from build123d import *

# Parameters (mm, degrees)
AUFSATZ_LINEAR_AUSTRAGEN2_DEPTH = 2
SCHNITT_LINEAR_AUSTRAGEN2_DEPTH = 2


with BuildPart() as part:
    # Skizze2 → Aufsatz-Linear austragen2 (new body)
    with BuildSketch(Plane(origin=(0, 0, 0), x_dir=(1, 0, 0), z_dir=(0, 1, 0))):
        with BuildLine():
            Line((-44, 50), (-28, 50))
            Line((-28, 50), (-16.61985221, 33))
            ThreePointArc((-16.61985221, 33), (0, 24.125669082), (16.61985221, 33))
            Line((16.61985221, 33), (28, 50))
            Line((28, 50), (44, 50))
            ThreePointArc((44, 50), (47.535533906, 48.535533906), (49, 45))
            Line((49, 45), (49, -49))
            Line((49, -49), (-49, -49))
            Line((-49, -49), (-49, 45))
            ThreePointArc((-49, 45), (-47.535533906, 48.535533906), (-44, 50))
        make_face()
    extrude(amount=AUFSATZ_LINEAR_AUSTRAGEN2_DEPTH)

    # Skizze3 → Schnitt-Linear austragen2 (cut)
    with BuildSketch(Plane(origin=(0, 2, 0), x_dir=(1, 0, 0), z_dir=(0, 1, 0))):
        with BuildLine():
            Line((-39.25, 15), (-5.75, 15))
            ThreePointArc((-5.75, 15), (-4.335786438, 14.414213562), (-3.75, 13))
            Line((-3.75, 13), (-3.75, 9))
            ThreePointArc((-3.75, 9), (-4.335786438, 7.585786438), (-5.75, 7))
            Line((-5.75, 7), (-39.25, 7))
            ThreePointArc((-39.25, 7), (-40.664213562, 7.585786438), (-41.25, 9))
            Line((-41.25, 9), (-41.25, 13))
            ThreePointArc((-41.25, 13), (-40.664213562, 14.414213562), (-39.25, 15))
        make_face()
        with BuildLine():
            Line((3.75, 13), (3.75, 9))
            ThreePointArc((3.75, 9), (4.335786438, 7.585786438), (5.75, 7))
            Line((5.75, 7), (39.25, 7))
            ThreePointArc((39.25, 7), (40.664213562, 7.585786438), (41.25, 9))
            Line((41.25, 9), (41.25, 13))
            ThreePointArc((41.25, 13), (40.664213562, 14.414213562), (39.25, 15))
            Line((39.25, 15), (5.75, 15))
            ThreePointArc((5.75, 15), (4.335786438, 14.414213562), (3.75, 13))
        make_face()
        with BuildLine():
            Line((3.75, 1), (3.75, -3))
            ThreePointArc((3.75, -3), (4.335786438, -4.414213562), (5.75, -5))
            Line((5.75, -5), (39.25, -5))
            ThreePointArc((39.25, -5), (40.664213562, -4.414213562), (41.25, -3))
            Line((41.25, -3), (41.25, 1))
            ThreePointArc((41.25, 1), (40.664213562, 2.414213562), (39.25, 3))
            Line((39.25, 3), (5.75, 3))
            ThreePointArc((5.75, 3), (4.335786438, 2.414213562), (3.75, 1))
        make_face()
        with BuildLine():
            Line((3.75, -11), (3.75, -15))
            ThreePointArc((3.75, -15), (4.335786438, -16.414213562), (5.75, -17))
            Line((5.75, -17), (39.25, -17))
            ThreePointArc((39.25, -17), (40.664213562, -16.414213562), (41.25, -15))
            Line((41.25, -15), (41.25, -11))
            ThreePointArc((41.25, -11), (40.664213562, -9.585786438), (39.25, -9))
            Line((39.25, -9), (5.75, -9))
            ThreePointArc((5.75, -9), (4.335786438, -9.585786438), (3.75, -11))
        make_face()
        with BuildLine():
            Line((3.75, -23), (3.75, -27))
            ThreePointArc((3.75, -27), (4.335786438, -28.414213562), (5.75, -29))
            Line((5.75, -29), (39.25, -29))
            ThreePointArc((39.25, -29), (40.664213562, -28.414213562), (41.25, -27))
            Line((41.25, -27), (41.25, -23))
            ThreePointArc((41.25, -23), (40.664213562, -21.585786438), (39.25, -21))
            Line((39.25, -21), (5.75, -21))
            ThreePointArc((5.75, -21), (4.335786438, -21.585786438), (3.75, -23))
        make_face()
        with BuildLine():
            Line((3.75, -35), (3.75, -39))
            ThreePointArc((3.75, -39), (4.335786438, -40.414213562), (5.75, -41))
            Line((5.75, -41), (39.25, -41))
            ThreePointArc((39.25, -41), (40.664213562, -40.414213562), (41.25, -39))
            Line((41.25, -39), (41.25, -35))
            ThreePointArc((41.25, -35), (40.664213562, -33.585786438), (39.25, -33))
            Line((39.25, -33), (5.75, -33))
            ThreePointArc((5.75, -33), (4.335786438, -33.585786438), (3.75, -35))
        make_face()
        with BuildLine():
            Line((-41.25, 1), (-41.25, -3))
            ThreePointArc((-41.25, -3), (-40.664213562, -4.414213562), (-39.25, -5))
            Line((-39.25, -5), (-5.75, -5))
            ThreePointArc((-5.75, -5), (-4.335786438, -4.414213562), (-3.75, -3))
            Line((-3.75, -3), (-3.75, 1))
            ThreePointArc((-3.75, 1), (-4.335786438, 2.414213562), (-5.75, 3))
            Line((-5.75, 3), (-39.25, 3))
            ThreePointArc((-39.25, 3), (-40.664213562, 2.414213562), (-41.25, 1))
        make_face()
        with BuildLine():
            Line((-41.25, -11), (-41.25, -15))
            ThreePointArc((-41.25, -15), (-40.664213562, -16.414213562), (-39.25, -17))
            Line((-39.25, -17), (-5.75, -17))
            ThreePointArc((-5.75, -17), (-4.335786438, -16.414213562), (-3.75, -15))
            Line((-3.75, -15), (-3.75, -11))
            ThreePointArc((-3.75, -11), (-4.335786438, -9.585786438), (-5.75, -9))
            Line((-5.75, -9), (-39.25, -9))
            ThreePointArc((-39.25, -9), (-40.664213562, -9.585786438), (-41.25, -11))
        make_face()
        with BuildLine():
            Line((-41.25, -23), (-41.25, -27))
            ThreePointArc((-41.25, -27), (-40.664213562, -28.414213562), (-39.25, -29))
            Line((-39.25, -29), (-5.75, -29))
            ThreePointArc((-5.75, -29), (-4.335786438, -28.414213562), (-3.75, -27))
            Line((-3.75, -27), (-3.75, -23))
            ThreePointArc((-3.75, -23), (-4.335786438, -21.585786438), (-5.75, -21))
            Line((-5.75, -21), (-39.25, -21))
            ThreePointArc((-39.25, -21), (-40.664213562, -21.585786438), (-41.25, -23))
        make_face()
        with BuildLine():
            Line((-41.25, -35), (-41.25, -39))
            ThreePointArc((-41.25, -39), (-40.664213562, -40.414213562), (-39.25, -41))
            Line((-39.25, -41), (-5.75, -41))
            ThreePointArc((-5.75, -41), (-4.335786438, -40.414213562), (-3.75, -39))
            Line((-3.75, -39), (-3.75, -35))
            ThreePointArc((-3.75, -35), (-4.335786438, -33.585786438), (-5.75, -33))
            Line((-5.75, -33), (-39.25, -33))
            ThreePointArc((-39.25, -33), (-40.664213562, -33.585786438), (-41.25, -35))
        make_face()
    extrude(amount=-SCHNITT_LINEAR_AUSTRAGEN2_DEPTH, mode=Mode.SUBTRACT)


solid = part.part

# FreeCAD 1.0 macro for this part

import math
import FreeCAD as App
import Part
import Sketcher
from FreeCAD import Vector

doc = App.newDocument("Part")
body = doc.addObject("PartDesign::Body", "Body")

# Sketch on XZ plane
sketch1 = body.newObject("Sketcher::SketchObject", "Sketch")
sketch1.AttachmentSupport = (doc.getObject("XZ_Plane"), [""])
sketch1.MapMode = "FlatFace"
sketch1.addGeometry([
    Part.LineSegment(Vector(-28, -50, 0), Vector(-44, -50, 0)),  # 0
    Part.ArcOfCircle(Part.Circle(Vector(-44, -45, 0), Vector(0, 0, 1), 5), math.radians(180), math.radians(270)),  # 1
    Part.LineSegment(Vector(-49, -45, 0), Vector(-49, 49, 0)),  # 2
    Part.LineSegment(Vector(-49, 49, 0), Vector(49, 49, 0)),  # 3
    Part.LineSegment(Vector(49, 49, 0), Vector(49, -45, 0)),  # 4
    Part.ArcOfCircle(Part.Circle(Vector(44, -45, 0), Vector(0, 0, 1), 5), math.radians(-90), math.radians(0)),  # 5
    Part.LineSegment(Vector(44, -50, 0), Vector(28, -50, 0)),  # 6
    Part.LineSegment(Vector(28, -50, 0), Vector(16.619852, -33, 0)),  # 7
    Part.ArcOfCircle(Part.Circle(Vector(0, -44.125669, 0), Vector(0, 0, 1), 20), math.radians(33.799161), math.radians(146.200839)),  # 8
    Part.LineSegment(Vector(-16.619852, -33, 0), Vector(-28, -50, 0)),  # 9
], False)
sketch1.addConstraint([
    Sketcher.Constraint("Tangent", 0, 2, 1, 2),
    Sketcher.Constraint("Tangent", 1, 1, 2, 1),
    Sketcher.Constraint("Coincident", 2, 2, 3, 1),
    Sketcher.Constraint("Coincident", 3, 2, 4, 1),
    Sketcher.Constraint("Tangent", 4, 2, 5, 2),
    Sketcher.Constraint("Tangent", 5, 1, 6, 1),
    Sketcher.Constraint("Coincident", 6, 2, 7, 1),
    Sketcher.Constraint("Tangent", 7, 2, 8, 1),
    Sketcher.Constraint("Tangent", 8, 2, 9, 1),
    Sketcher.Constraint("Coincident", 9, 2, 0, 1),
    Sketcher.Constraint("Horizontal", 0),
    Sketcher.Constraint("Vertical", 2),
    Sketcher.Constraint("Horizontal", 3),
    Sketcher.Constraint("Vertical", 4),
    Sketcher.Constraint("Horizontal", 6),
    Sketcher.Constraint("Equal", 1, 5),
    Sketcher.Constraint("Symmetric", 1, 3, 5, 3, -2),
    Sketcher.Constraint("Symmetric", 7, 2, 8, 2, -2),
    Sketcher.Constraint("Radius", 1, 5.0),
    Sketcher.Constraint("Radius", 8, 20.0),
    Sketcher.Constraint("DistanceX", 0, 2, 0, 1, 16.0),
    Sketcher.Constraint("DistanceX", 3, 1, 3, 2, 98.0),
    Sketcher.Constraint("DistanceY", 2, 1, 2, 2, 94.0),
    Sketcher.Constraint("DistanceY", 1, 3, -1, 1, 45.0),
    Sketcher.Constraint("DistanceY", 7, 2, -1, 1, 33.0),
])
pad1 = body.newObject("PartDesign::Pad", "Pad")
pad1.Profile = sketch1
pad1.Length = 2
pad1.Reversed = True

# Sketch on XZ plane
sketch2 = body.newObject("Sketcher::SketchObject", "Sketch001")
sketch2.AttachmentSupport = (doc.getObject("XZ_Plane"), [""])
sketch2.MapMode = "FlatFace"
sketch2.AttachmentOffset = App.Placement(Vector(0, 0, -2), App.Rotation())
sketch2.addGeometry([
    Part.LineSegment(Vector(-5.75, -15, 0), Vector(-39.25, -15, 0)),  # 0
    Part.ArcOfCircle(Part.Circle(Vector(-39.25, -13, 0), Vector(0, 0, 1), 2), math.radians(-180), math.radians(-90)),  # 1
    Part.LineSegment(Vector(-41.25, -13, 0), Vector(-41.25, -9, 0)),  # 2
    Part.ArcOfCircle(Part.Circle(Vector(-39.25, -9, 0), Vector(0, 0, 1), 2), math.radians(90), math.radians(180)),  # 3
    Part.LineSegment(Vector(-39.25, -7, 0), Vector(-5.75, -7, 0)),  # 4
    Part.ArcOfCircle(Part.Circle(Vector(-5.75, -9, 0), Vector(0, 0, 1), 2), math.radians(0), math.radians(90)),  # 5
    Part.LineSegment(Vector(-3.75, -9, 0), Vector(-3.75, -13, 0)),  # 6
    Part.ArcOfCircle(Part.Circle(Vector(-5.75, -13, 0), Vector(0, 0, 1), 2), math.radians(-90), math.radians(0)),  # 7
    Part.LineSegment(Vector(3.75, -13, 0), Vector(3.75, -9, 0)),  # 8
    Part.ArcOfCircle(Part.Circle(Vector(5.75, -9, 0), Vector(0, 0, 1), 2), math.radians(90), math.radians(180)),  # 9
    Part.LineSegment(Vector(5.75, -7, 0), Vector(39.25, -7, 0)),  # 10
    Part.ArcOfCircle(Part.Circle(Vector(39.25, -9, 0), Vector(0, 0, 1), 2), math.radians(0), math.radians(90)),  # 11
    Part.LineSegment(Vector(41.25, -9, 0), Vector(41.25, -13, 0)),  # 12
    Part.ArcOfCircle(Part.Circle(Vector(39.25, -13, 0), Vector(0, 0, 1), 2), math.radians(-90), math.radians(0)),  # 13
    Part.LineSegment(Vector(39.25, -15, 0), Vector(5.75, -15, 0)),  # 14
    Part.ArcOfCircle(Part.Circle(Vector(5.75, -13, 0), Vector(0, 0, 1), 2), math.radians(-180), math.radians(-90)),  # 15
    Part.LineSegment(Vector(3.75, -1, 0), Vector(3.75, 3, 0)),  # 16
    Part.ArcOfCircle(Part.Circle(Vector(5.75, 3, 0), Vector(0, 0, 1), 2), math.radians(90), math.radians(180)),  # 17
    Part.LineSegment(Vector(5.75, 5, 0), Vector(39.25, 5, 0)),  # 18
    Part.ArcOfCircle(Part.Circle(Vector(39.25, 3, 0), Vector(0, 0, 1), 2), math.radians(0), math.radians(90)),  # 19
    Part.LineSegment(Vector(41.25, 3, 0), Vector(41.25, -1, 0)),  # 20
    Part.ArcOfCircle(Part.Circle(Vector(39.25, -1, 0), Vector(0, 0, 1), 2), math.radians(-90), math.radians(0)),  # 21
    Part.LineSegment(Vector(39.25, -3, 0), Vector(5.75, -3, 0)),  # 22
    Part.ArcOfCircle(Part.Circle(Vector(5.75, -1, 0), Vector(0, 0, 1), 2), math.radians(-180), math.radians(-90)),  # 23
    Part.LineSegment(Vector(3.75, 11, 0), Vector(3.75, 15, 0)),  # 24
    Part.ArcOfCircle(Part.Circle(Vector(5.75, 15, 0), Vector(0, 0, 1), 2), math.radians(90), math.radians(180)),  # 25
    Part.LineSegment(Vector(5.75, 17, 0), Vector(39.25, 17, 0)),  # 26
    Part.ArcOfCircle(Part.Circle(Vector(39.25, 15, 0), Vector(0, 0, 1), 2), math.radians(0), math.radians(90)),  # 27
    Part.LineSegment(Vector(41.25, 15, 0), Vector(41.25, 11, 0)),  # 28
    Part.ArcOfCircle(Part.Circle(Vector(39.25, 11, 0), Vector(0, 0, 1), 2), math.radians(-90), math.radians(0)),  # 29
    Part.LineSegment(Vector(39.25, 9, 0), Vector(5.75, 9, 0)),  # 30
    Part.ArcOfCircle(Part.Circle(Vector(5.75, 11, 0), Vector(0, 0, 1), 2), math.radians(-180), math.radians(-90)),  # 31
    Part.LineSegment(Vector(3.75, 23, 0), Vector(3.75, 27, 0)),  # 32
    Part.ArcOfCircle(Part.Circle(Vector(5.75, 27, 0), Vector(0, 0, 1), 2), math.radians(90), math.radians(180)),  # 33
    Part.LineSegment(Vector(5.75, 29, 0), Vector(39.25, 29, 0)),  # 34
    Part.ArcOfCircle(Part.Circle(Vector(39.25, 27, 0), Vector(0, 0, 1), 2), math.radians(0), math.radians(90)),  # 35
    Part.LineSegment(Vector(41.25, 27, 0), Vector(41.25, 23, 0)),  # 36
    Part.ArcOfCircle(Part.Circle(Vector(39.25, 23, 0), Vector(0, 0, 1), 2), math.radians(-90), math.radians(0)),  # 37
    Part.LineSegment(Vector(39.25, 21, 0), Vector(5.75, 21, 0)),  # 38
    Part.ArcOfCircle(Part.Circle(Vector(5.75, 23, 0), Vector(0, 0, 1), 2), math.radians(-180), math.radians(-90)),  # 39
    Part.LineSegment(Vector(3.75, 35, 0), Vector(3.75, 39, 0)),  # 40
    Part.ArcOfCircle(Part.Circle(Vector(5.75, 39, 0), Vector(0, 0, 1), 2), math.radians(90), math.radians(180)),  # 41
    Part.LineSegment(Vector(5.75, 41, 0), Vector(39.25, 41, 0)),  # 42
    Part.ArcOfCircle(Part.Circle(Vector(39.25, 39, 0), Vector(0, 0, 1), 2), math.radians(0), math.radians(90)),  # 43
    Part.LineSegment(Vector(41.25, 39, 0), Vector(41.25, 35, 0)),  # 44
    Part.ArcOfCircle(Part.Circle(Vector(39.25, 35, 0), Vector(0, 0, 1), 2), math.radians(-90), math.radians(0)),  # 45
    Part.LineSegment(Vector(39.25, 33, 0), Vector(5.75, 33, 0)),  # 46
    Part.ArcOfCircle(Part.Circle(Vector(5.75, 35, 0), Vector(0, 0, 1), 2), math.radians(-180), math.radians(-90)),  # 47
    Part.LineSegment(Vector(-41.25, -1, 0), Vector(-41.25, 3, 0)),  # 48
    Part.ArcOfCircle(Part.Circle(Vector(-39.25, 3, 0), Vector(0, 0, 1), 2), math.radians(90), math.radians(180)),  # 49
    Part.LineSegment(Vector(-39.25, 5, 0), Vector(-5.75, 5, 0)),  # 50
    Part.ArcOfCircle(Part.Circle(Vector(-5.75, 3, 0), Vector(0, 0, 1), 2), math.radians(0), math.radians(90)),  # 51
    Part.LineSegment(Vector(-3.75, 3, 0), Vector(-3.75, -1, 0)),  # 52
    Part.ArcOfCircle(Part.Circle(Vector(-5.75, -1, 0), Vector(0, 0, 1), 2), math.radians(-90), math.radians(0)),  # 53
    Part.LineSegment(Vector(-5.75, -3, 0), Vector(-39.25, -3, 0)),  # 54
    Part.ArcOfCircle(Part.Circle(Vector(-39.25, -1, 0), Vector(0, 0, 1), 2), math.radians(-180), math.radians(-90)),  # 55
    Part.LineSegment(Vector(-41.25, 11, 0), Vector(-41.25, 15, 0)),  # 56
    Part.ArcOfCircle(Part.Circle(Vector(-39.25, 15, 0), Vector(0, 0, 1), 2), math.radians(90), math.radians(180)),  # 57
    Part.LineSegment(Vector(-39.25, 17, 0), Vector(-5.75, 17, 0)),  # 58
    Part.ArcOfCircle(Part.Circle(Vector(-5.75, 15, 0), Vector(0, 0, 1), 2), math.radians(0), math.radians(90)),  # 59
    Part.LineSegment(Vector(-3.75, 15, 0), Vector(-3.75, 11, 0)),  # 60
    Part.ArcOfCircle(Part.Circle(Vector(-5.75, 11, 0), Vector(0, 0, 1), 2), math.radians(-90), math.radians(0)),  # 61
    Part.LineSegment(Vector(-5.75, 9, 0), Vector(-39.25, 9, 0)),  # 62
    Part.ArcOfCircle(Part.Circle(Vector(-39.25, 11, 0), Vector(0, 0, 1), 2), math.radians(-180), math.radians(-90)),  # 63
    Part.LineSegment(Vector(-41.25, 23, 0), Vector(-41.25, 27, 0)),  # 64
    Part.ArcOfCircle(Part.Circle(Vector(-39.25, 27, 0), Vector(0, 0, 1), 2), math.radians(90), math.radians(180)),  # 65
    Part.LineSegment(Vector(-39.25, 29, 0), Vector(-5.75, 29, 0)),  # 66
    Part.ArcOfCircle(Part.Circle(Vector(-5.75, 27, 0), Vector(0, 0, 1), 2), math.radians(0), math.radians(90)),  # 67
    Part.LineSegment(Vector(-3.75, 27, 0), Vector(-3.75, 23, 0)),  # 68
    Part.ArcOfCircle(Part.Circle(Vector(-5.75, 23, 0), Vector(0, 0, 1), 2), math.radians(-90), math.radians(0)),  # 69
    Part.LineSegment(Vector(-5.75, 21, 0), Vector(-39.25, 21, 0)),  # 70
    Part.ArcOfCircle(Part.Circle(Vector(-39.25, 23, 0), Vector(0, 0, 1), 2), math.radians(-180), math.radians(-90)),  # 71
    Part.LineSegment(Vector(-41.25, 35, 0), Vector(-41.25, 39, 0)),  # 72
    Part.ArcOfCircle(Part.Circle(Vector(-39.25, 39, 0), Vector(0, 0, 1), 2), math.radians(90), math.radians(180)),  # 73
    Part.LineSegment(Vector(-39.25, 41, 0), Vector(-5.75, 41, 0)),  # 74
    Part.ArcOfCircle(Part.Circle(Vector(-5.75, 39, 0), Vector(0, 0, 1), 2), math.radians(0), math.radians(90)),  # 75
    Part.LineSegment(Vector(-3.75, 39, 0), Vector(-3.75, 35, 0)),  # 76
    Part.ArcOfCircle(Part.Circle(Vector(-5.75, 35, 0), Vector(0, 0, 1), 2), math.radians(-90), math.radians(0)),  # 77
    Part.LineSegment(Vector(-5.75, 33, 0), Vector(-39.25, 33, 0)),  # 78
    Part.ArcOfCircle(Part.Circle(Vector(-39.25, 35, 0), Vector(0, 0, 1), 2), math.radians(-180), math.radians(-90)),  # 79
], False)
sketch2.addConstraint([
    Sketcher.Constraint("Tangent", 0, 2, 1, 2),
    Sketcher.Constraint("Tangent", 1, 1, 2, 1),
    Sketcher.Constraint("Tangent", 2, 2, 3, 2),
    Sketcher.Constraint("Tangent", 3, 1, 4, 1),
    Sketcher.Constraint("Tangent", 4, 2, 5, 2),
    Sketcher.Constraint("Tangent", 5, 1, 6, 1),
    Sketcher.Constraint("Tangent", 6, 2, 7, 2),
    Sketcher.Constraint("Tangent", 7, 1, 0, 1),
    Sketcher.Constraint("Tangent", 8, 2, 9, 2),
    Sketcher.Constraint("Tangent", 9, 1, 10, 1),
    Sketcher.Constraint("Tangent", 10, 2, 11, 2),
    Sketcher.Constraint("Tangent", 11, 1, 12, 1),
    Sketcher.Constraint("Tangent", 12, 2, 13, 2),
    Sketcher.Constraint("Tangent", 13, 1, 14, 1),
    Sketcher.Constraint("Tangent", 14, 2, 15, 2),
    Sketcher.Constraint("Tangent", 15, 1, 8, 1),
    Sketcher.Constraint("Tangent", 16, 2, 17, 2),
    Sketcher.Constraint("Tangent", 17, 1, 18, 1),
    Sketcher.Constraint("Tangent", 18, 2, 19, 2),
    Sketcher.Constraint("Tangent", 19, 1, 20, 1),
    Sketcher.Constraint("Tangent", 20, 2, 21, 2),
    Sketcher.Constraint("Tangent", 21, 1, 22, 1),
    Sketcher.Constraint("Tangent", 22, 2, 23, 2),
    Sketcher.Constraint("Tangent", 23, 1, 16, 1),
    Sketcher.Constraint("Tangent", 24, 2, 25, 2),
    Sketcher.Constraint("Tangent", 25, 1, 26, 1),
    Sketcher.Constraint("Tangent", 26, 2, 27, 2),
    Sketcher.Constraint("Tangent", 27, 1, 28, 1),
    Sketcher.Constraint("Tangent", 28, 2, 29, 2),
    Sketcher.Constraint("Tangent", 29, 1, 30, 1),
    Sketcher.Constraint("Tangent", 30, 2, 31, 2),
    Sketcher.Constraint("Tangent", 31, 1, 24, 1),
    Sketcher.Constraint("Tangent", 32, 2, 33, 2),
    Sketcher.Constraint("Tangent", 33, 1, 34, 1),
    Sketcher.Constraint("Tangent", 34, 2, 35, 2),
    Sketcher.Constraint("Tangent", 35, 1, 36, 1),
    Sketcher.Constraint("Tangent", 36, 2, 37, 2),
    Sketcher.Constraint("Tangent", 37, 1, 38, 1),
    Sketcher.Constraint("Tangent", 38, 2, 39, 2),
    Sketcher.Constraint("Tangent", 39, 1, 32, 1),
    Sketcher.Constraint("Tangent", 40, 2, 41, 2),
    Sketcher.Constraint("Tangent", 41, 1, 42, 1),
    Sketcher.Constraint("Tangent", 42, 2, 43, 2),
    Sketcher.Constraint("Tangent", 43, 1, 44, 1),
    Sketcher.Constraint("Tangent", 44, 2, 45, 2),
    Sketcher.Constraint("Tangent", 45, 1, 46, 1),
    Sketcher.Constraint("Tangent", 46, 2, 47, 2),
    Sketcher.Constraint("Tangent", 47, 1, 40, 1),
    Sketcher.Constraint("Tangent", 48, 2, 49, 2),
    Sketcher.Constraint("Tangent", 49, 1, 50, 1),
    Sketcher.Constraint("Tangent", 50, 2, 51, 2),
    Sketcher.Constraint("Tangent", 51, 1, 52, 1),
    Sketcher.Constraint("Tangent", 52, 2, 53, 2),
    Sketcher.Constraint("Tangent", 53, 1, 54, 1),
    Sketcher.Constraint("Tangent", 54, 2, 55, 2),
    Sketcher.Constraint("Tangent", 55, 1, 48, 1),
    Sketcher.Constraint("Tangent", 56, 2, 57, 2),
    Sketcher.Constraint("Tangent", 57, 1, 58, 1),
    Sketcher.Constraint("Tangent", 58, 2, 59, 2),
    Sketcher.Constraint("Tangent", 59, 1, 60, 1),
    Sketcher.Constraint("Tangent", 60, 2, 61, 2),
    Sketcher.Constraint("Tangent", 61, 1, 62, 1),
    Sketcher.Constraint("Tangent", 62, 2, 63, 2),
    Sketcher.Constraint("Tangent", 63, 1, 56, 1),
    Sketcher.Constraint("Tangent", 64, 2, 65, 2),
    Sketcher.Constraint("Tangent", 65, 1, 66, 1),
    Sketcher.Constraint("Tangent", 66, 2, 67, 2),
    Sketcher.Constraint("Tangent", 67, 1, 68, 1),
    Sketcher.Constraint("Tangent", 68, 2, 69, 2),
    Sketcher.Constraint("Tangent", 69, 1, 70, 1),
    Sketcher.Constraint("Tangent", 70, 2, 71, 2),
    Sketcher.Constraint("Tangent", 71, 1, 64, 1),
    Sketcher.Constraint("Tangent", 72, 2, 73, 2),
    Sketcher.Constraint("Tangent", 73, 1, 74, 1),
    Sketcher.Constraint("Tangent", 74, 2, 75, 2),
    Sketcher.Constraint("Tangent", 75, 1, 76, 1),
    Sketcher.Constraint("Tangent", 76, 2, 77, 2),
    Sketcher.Constraint("Tangent", 77, 1, 78, 1),
    Sketcher.Constraint("Tangent", 78, 2, 79, 2),
    Sketcher.Constraint("Tangent", 79, 1, 72, 1),
    Sketcher.Constraint("Horizontal", 0),
    Sketcher.Constraint("Vertical", 2),
    Sketcher.Constraint("Horizontal", 4),
    Sketcher.Constraint("Vertical", 6),
    Sketcher.Constraint("Vertical", 8),
    Sketcher.Constraint("Horizontal", 10),
    Sketcher.Constraint("Vertical", 12),
    Sketcher.Constraint("Horizontal", 14),
    Sketcher.Constraint("Vertical", 16),
    Sketcher.Constraint("Horizontal", 18),
    Sketcher.Constraint("Vertical", 20),
    Sketcher.Constraint("Horizontal", 22),
    Sketcher.Constraint("Vertical", 24),
    Sketcher.Constraint("Horizontal", 26),
    Sketcher.Constraint("Vertical", 28),
    Sketcher.Constraint("Horizontal", 30),
    Sketcher.Constraint("Vertical", 32),
    Sketcher.Constraint("Horizontal", 34),
    Sketcher.Constraint("Vertical", 36),
    Sketcher.Constraint("Horizontal", 38),
    Sketcher.Constraint("Vertical", 40),
    Sketcher.Constraint("Horizontal", 42),
    Sketcher.Constraint("Vertical", 44),
    Sketcher.Constraint("Horizontal", 46),
    Sketcher.Constraint("Vertical", 48),
    Sketcher.Constraint("Horizontal", 50),
    Sketcher.Constraint("Vertical", 52),
    Sketcher.Constraint("Horizontal", 54),
    Sketcher.Constraint("Vertical", 56),
    Sketcher.Constraint("Horizontal", 58),
    Sketcher.Constraint("Vertical", 60),
    Sketcher.Constraint("Horizontal", 62),
    Sketcher.Constraint("Vertical", 64),
    Sketcher.Constraint("Horizontal", 66),
    Sketcher.Constraint("Vertical", 68),
    Sketcher.Constraint("Horizontal", 70),
    Sketcher.Constraint("Vertical", 72),
    Sketcher.Constraint("Horizontal", 74),
    Sketcher.Constraint("Vertical", 76),
    Sketcher.Constraint("Horizontal", 78),
    Sketcher.Constraint("Equal", 1, 3),
    Sketcher.Constraint("Equal", 3, 5),
    Sketcher.Constraint("Equal", 5, 7),
    Sketcher.Constraint("Equal", 7, 9),
    Sketcher.Constraint("Equal", 9, 11),
    Sketcher.Constraint("Equal", 11, 13),
    Sketcher.Constraint("Equal", 13, 15),
    Sketcher.Constraint("Equal", 15, 17),
    Sketcher.Constraint("Equal", 17, 19),
    Sketcher.Constraint("Equal", 19, 21),
    Sketcher.Constraint("Equal", 21, 23),
    Sketcher.Constraint("Equal", 23, 25),
    Sketcher.Constraint("Equal", 25, 27),
    Sketcher.Constraint("Equal", 27, 29),
    Sketcher.Constraint("Equal", 29, 31),
    Sketcher.Constraint("Equal", 31, 33),
    Sketcher.Constraint("Equal", 33, 35),
    Sketcher.Constraint("Equal", 35, 37),
    Sketcher.Constraint("Equal", 37, 39),
    Sketcher.Constraint("Equal", 39, 41),
    Sketcher.Constraint("Equal", 41, 43),
    Sketcher.Constraint("Equal", 43, 45),
    Sketcher.Constraint("Equal", 45, 47),
    Sketcher.Constraint("Equal", 47, 49),
    Sketcher.Constraint("Equal", 49, 51),
    Sketcher.Constraint("Equal", 51, 53),
    Sketcher.Constraint("Equal", 53, 55),
    Sketcher.Constraint("Equal", 55, 57),
    Sketcher.Constraint("Equal", 57, 59),
    Sketcher.Constraint("Equal", 59, 61),
    Sketcher.Constraint("Equal", 61, 63),
    Sketcher.Constraint("Equal", 63, 65),
    Sketcher.Constraint("Equal", 65, 67),
    Sketcher.Constraint("Equal", 67, 69),
    Sketcher.Constraint("Equal", 69, 71),
    Sketcher.Constraint("Equal", 71, 73),
    Sketcher.Constraint("Equal", 73, 75),
    Sketcher.Constraint("Equal", 75, 77),
    Sketcher.Constraint("Equal", 77, 79),
    Sketcher.Constraint("Symmetric", 5, 3, 9, 3, -2),
    Sketcher.Constraint("Symmetric", 1, 3, 13, 3, -2),
    Sketcher.Constraint("Symmetric", 19, 3, 49, 3, -2),
    Sketcher.Constraint("Symmetric", 23, 3, 53, 3, -2),
    Sketcher.Constraint("Symmetric", 27, 3, 57, 3, -2),
    Sketcher.Constraint("Symmetric", 31, 3, 61, 3, -2),
    Sketcher.Constraint("Symmetric", 35, 3, 65, 3, -2),
    Sketcher.Constraint("Symmetric", 39, 3, 69, 3, -2),
    Sketcher.Constraint("Symmetric", 43, 3, 73, 3, -2),
    Sketcher.Constraint("Symmetric", 47, 3, 77, 3, -2),
    Sketcher.Constraint("Vertical", 15, 3, 17, 3),
    Sketcher.Constraint("Vertical", 13, 3, 19, 3),
    Sketcher.Constraint("Vertical", 23, 3, 25, 3),
    Sketcher.Constraint("Vertical", 21, 3, 27, 3),
    Sketcher.Constraint("Vertical", 31, 3, 33, 3),
    Sketcher.Constraint("Vertical", 29, 3, 35, 3),
    Sketcher.Constraint("Vertical", 39, 3, 41, 3),
    Sketcher.Constraint("Vertical", 37, 3, 43, 3),
    Sketcher.Constraint("Equal", 12, 16),
    Sketcher.Constraint("Equal", 20, 24),
    Sketcher.Constraint("Equal", 28, 32),
    Sketcher.Constraint("Equal", 36, 40),
    Sketcher.Constraint("Radius", 1, 2.0),
    Sketcher.Constraint("DistanceY", 2, 1, 2, 2, 4.0),
    Sketcher.Constraint("DistanceX", 0, 2, 0, 1, 33.5),
    Sketcher.Constraint("DistanceY", 1, 3, -1, 1, 13.0),
    Sketcher.Constraint("DistanceY", -1, 1, 17, 3, 3.0),
    Sketcher.Constraint("DistanceY", -1, 1, 25, 3, 15.0),
    Sketcher.Constraint("DistanceY", -1, 1, 33, 3, 27.0),
    Sketcher.Constraint("DistanceY", -1, 1, 41, 3, 39.0),
    Sketcher.Constraint("DistanceX", 1, 3, -1, 1, 39.25),
])
pocket1 = body.newObject("PartDesign::Pocket", "Pocket")
pocket1.Profile = sketch2
pocket1.Length = 2
pocket1.Reversed = True

doc.recompute()
